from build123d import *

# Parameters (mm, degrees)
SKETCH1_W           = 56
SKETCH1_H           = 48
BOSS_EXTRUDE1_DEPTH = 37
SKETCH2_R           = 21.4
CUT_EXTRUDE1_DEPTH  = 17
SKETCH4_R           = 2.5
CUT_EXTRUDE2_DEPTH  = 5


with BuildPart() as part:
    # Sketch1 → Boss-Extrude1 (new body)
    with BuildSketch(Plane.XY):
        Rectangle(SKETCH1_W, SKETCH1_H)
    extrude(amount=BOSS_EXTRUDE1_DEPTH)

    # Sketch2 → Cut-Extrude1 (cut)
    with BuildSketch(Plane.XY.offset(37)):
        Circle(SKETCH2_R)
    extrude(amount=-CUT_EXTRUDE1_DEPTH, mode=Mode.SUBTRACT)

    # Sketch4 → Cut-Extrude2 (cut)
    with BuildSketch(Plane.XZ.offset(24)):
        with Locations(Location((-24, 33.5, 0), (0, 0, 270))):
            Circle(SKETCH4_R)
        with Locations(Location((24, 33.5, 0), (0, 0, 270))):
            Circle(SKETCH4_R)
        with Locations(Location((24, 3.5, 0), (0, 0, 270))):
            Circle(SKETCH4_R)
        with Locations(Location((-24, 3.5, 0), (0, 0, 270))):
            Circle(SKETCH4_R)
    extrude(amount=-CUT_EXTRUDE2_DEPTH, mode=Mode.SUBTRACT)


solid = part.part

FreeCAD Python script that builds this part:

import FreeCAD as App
import Part
import Sketcher
Q = App.Units.Quantity


def add_polygon(sketch, points):
    """Adds a closed chain of lines whose ends are joined by coincident constraints."""
    first, n = sketch.GeometryCount, len(points)
    for a, b in zip(points, points[1:] + points[:1]):
        sketch.addGeometry(Part.LineSegment(App.Vector(*a, 0), App.Vector(*b, 0)), False)
    for i in range(n):
        sketch.addConstraint(Sketcher.Constraint("Coincident", first + i, 2, first + (i + 1) % n, 1))

doc = App.newDocument("Part")
body = doc.addObject("PartDesign::Body", "Body")

sketch1 = doc.addObject("Sketcher::SketchObject", "Sketch")
body.addObject(sketch1)
sketch1.AttachmentSupport = (doc.XY_Plane, [""])
sketch1.MapMode = "FlatFace"
add_polygon(sketch1, [(-28, 24), (-28, -24), (28, -24), (28, 24)])
sketch1.addConstraint([
    Sketcher.Constraint("Vertical", 0),
    Sketcher.Constraint("Horizontal", 1),
    Sketcher.Constraint("Vertical", 2),
    Sketcher.Constraint("Horizontal", 3),
    Sketcher.Constraint("Symmetric", 0, 2, 2, 2, -1, 1),
    Sketcher.Constraint("DistanceX", 1, 1, 1, 2, Q("56 mm")),
    Sketcher.Constraint("DistanceY", 0, 2, 0, 1, Q("48 mm")),
])
pad1 = doc.addObject("PartDesign::Pad", "Pad")
body.addObject(pad1)
pad1.Profile = sketch1
pad1.Length = 37

sketch2 = doc.addObject("Sketcher::SketchObject", "Sketch001")
body.addObject(sketch2)
sketch2.AttachmentSupport = (doc.XY_Plane, [""])
sketch2.MapMode = "FlatFace"
sketch2.AttachmentOffset = App.Placement(App.Vector(0, 0, 37), App.Rotation())
sketch2.addGeometry(Part.Circle(App.Vector(0, 0, 0), App.Vector(0, 0, 1), 21), False)
sketch2.addConstraint([
    Sketcher.Constraint("Coincident", 0, 3, -1, 1),
    Sketcher.Constraint("Diameter", 0, Q("42.8 mm")),
])
pocket1 = doc.addObject("PartDesign::Pocket", "Pocket")
body.addObject(pocket1)
pocket1.Profile = sketch2
pocket1.Length = 17

sketch3 = doc.addObject("Sketcher::SketchObject", "Sketch002")
body.addObject(sketch3)
sketch3.AttachmentSupport = (doc.XZ_Plane, [""])
sketch3.MapMode = "FlatFace"
sketch3.AttachmentOffset = App.Placement(App.Vector(0, 0, 24), App.Rotation())
sketch3.addGeometry([
    Part.Circle(App.Vector(-24, 33.5, 0), App.Vector(0, 0, 1), 2.5),
    Part.Circle(App.Vector(24, 33.5, 0), App.Vector(0, 0, 1), 2.5),
    Part.Circle(App.Vector(24, 3.5, 0), App.Vector(0, 0, 1), 2.5),
    Part.Circle(App.Vector(-24, 3.5, 0), App.Vector(0, 0, 1), 2.5),
], False)
sketch3.addConstraint([
    Sketcher.Constraint("Equal", 0, 1),
    Sketcher.Constraint("Equal", 1, 2),
    Sketcher.Constraint("Equal", 2, 3),
    Sketcher.Constraint("Symmetric", 0, 3, 1, 3, -2),
    Sketcher.Constraint("Symmetric", 2, 3, 3, 3, -2),
    Sketcher.Constraint("Vertical", 1, 3, 2, 3),
    Sketcher.Constraint("Diameter", 0, Q("5 mm")),
    Sketcher.Constraint("DistanceX", 0, 3, -1, 1, Q("24 mm")),
    Sketcher.Constraint("DistanceY", 2, 3, 1, 3, Q("30 mm")),
    Sketcher.Constraint("DistanceY", -1, 1, 0, 3, Q("33.5 mm")),
])
pocket2 = doc.addObject("PartDesign::Pocket", "Pocket001")
body.addObject(pocket2)
pocket2.Profile = sketch3
pocket2.Length = 5

doc.recompute()
